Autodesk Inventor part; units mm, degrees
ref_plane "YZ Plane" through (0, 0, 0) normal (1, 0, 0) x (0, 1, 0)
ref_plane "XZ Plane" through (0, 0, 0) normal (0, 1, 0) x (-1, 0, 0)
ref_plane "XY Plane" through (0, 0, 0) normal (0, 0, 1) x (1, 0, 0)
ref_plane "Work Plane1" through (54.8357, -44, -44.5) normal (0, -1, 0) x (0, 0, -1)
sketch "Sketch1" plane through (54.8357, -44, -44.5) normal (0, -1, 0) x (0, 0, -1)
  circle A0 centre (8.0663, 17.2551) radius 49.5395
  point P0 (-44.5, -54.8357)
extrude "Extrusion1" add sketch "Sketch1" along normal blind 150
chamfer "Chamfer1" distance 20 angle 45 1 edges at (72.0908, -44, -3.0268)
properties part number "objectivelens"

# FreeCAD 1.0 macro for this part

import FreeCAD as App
import Part
import Sketcher

V = App.Vector
Q = App.Units.Quantity


def edges_at(feature, points):
    """Names of the edges that pass closest to the given points."""
    edges = feature.Shape.Edges
    near = lambda p: min(range(len(edges)), key=lambda i: edges[i].distToShape(Part.Vertex(*p))[0])
    return sorted({f"Edge{near(p) + 1}" for p in points})

doc = App.newDocument("Part")
params = doc.addObject("Spreadsheet::Sheet", "Params")
for row, (alias, value) in enumerate([
    ("pad1_length", "150 mm"),
    ("chamfer_size", "20 mm"),
], start=1):
    params.set(f"A{row}", alias)
    params.set(f"B{row}", "=" + value)
    params.setAlias(f"B{row}", alias)

body = doc.addObject("PartDesign::Body", "Body")

# Sketch on XZ plane
sketch1 = body.newObject("Sketcher::SketchObject", "Sketch")
sketch1.AttachmentSupport = (doc.getObject("XZ_Plane"), [""])
sketch1.MapMode = "FlatFace"
sketch1.AttachmentOffset = App.Placement(V(0, 0, 44), App.Rotation())
sketch1.addGeometry(Part.Circle(V(72, -53, 0), V(0, 0, 1), 50), False)
sketch1.addConstraint(Sketcher.Constraint("Diameter", 0, Q("99.079 mm")))
sketch1.addConstraint(Sketcher.Constraint("DistanceX", -1, 1, 0, 3, Q("72.0908 mm")))
sketch1.addConstraint(Sketcher.Constraint("DistanceY", 0, 3, -1, 1, Q("52.5663 mm")))
pad1 = body.newObject("PartDesign::Pad", "Pad")
pad1.Profile = sketch1
pad1.setExpression("Length", "Params.pad1_length")
doc.recompute()

chamfer = body.newObject("PartDesign::Chamfer", "Chamfer")
chamfer.Base = (pad1, edges_at(pad1, [(72.091, -44, -3.027)]))
chamfer.setExpression("Size", "Params.chamfer_size")

doc.recompute()
